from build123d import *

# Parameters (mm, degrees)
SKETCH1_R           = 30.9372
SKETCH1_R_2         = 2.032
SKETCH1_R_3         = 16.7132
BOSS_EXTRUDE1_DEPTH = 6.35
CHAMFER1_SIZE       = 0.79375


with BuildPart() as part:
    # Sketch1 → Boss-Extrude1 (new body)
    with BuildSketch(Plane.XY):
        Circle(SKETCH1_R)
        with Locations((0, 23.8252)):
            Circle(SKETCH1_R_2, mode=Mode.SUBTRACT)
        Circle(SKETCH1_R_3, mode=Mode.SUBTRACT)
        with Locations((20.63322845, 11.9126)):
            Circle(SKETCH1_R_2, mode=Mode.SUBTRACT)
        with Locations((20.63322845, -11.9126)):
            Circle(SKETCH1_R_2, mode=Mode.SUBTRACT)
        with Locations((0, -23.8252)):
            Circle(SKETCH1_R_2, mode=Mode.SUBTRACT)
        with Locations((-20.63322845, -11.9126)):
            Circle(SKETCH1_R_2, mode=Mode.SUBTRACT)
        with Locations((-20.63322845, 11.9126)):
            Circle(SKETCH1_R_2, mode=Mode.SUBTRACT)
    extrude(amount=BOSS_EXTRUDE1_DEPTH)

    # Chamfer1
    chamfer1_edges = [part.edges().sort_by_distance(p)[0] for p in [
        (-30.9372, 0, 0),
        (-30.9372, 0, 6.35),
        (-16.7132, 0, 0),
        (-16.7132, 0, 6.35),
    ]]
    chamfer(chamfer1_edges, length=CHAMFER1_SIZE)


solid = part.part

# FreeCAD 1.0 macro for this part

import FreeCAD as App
import Part
import Sketcher
from FreeCAD import Vector
Q = App.Units.Quantity


def edges_at(feature, points):
    """Names of the edges that pass closest to the given points."""
    edges = feature.Shape.Edges
    near = lambda p: min(range(len(edges)), key=lambda i: edges[i].distToShape(Part.Vertex(*p))[0])
    return sorted({f"Edge{near(p) + 1}" for p in points})

doc = App.newDocument("Part")
body = doc.addObject("PartDesign::Body", "Body")

sketch1 = body.newObject("Sketcher::SketchObject", "Sketch")
sketch1.AttachmentSupport = (doc.getObject("XY_Plane"), [""])
sketch1.MapMode = "FlatFace"
sketch1.addGeometry([
    Part.Circle(Vector(0, 0, 0), Vector(0, 0, 1), 30.9372),
    Part.Circle(Vector(-20.633228, -11.9126, 0), Vector(0, 0, 1), 2.032),
    Part.Circle(Vector(0, -23.8252, 0), Vector(0, 0, 1), 2.032),
    Part.Circle(Vector(20.633228, -11.9126, 0), Vector(0, 0, 1), 2.032),
    Part.Circle(Vector(-20.633228, 11.9126, 0), Vector(0, 0, 1), 2.032),
    Part.Circle(Vector(0, 0, 0), Vector(0, 0, 1), 16.7132),
    Part.Circle(Vector(20.633228, 11.9126, 0), Vector(0, 0, 1), 2.032),
    Part.Circle(Vector(0, 23.8252, 0), Vector(0, 0, 1), 2.032),
], False)
sketch1.addConstraint([
    Sketcher.Constraint("Coincident", 0, 3, -1, 1),
    Sketcher.Constraint("Coincident", 5, 3, -1, 1),
    Sketcher.Constraint("Equal", 1, 2),
    Sketcher.Constraint("Equal", 2, 3),
    Sketcher.Constraint("Equal", 3, 4),
    Sketcher.Constraint("Equal", 4, 6),
    Sketcher.Constraint("Equal", 6, 7),
    Sketcher.Constraint("Symmetric", 3, 3, 4, 3, -1, 1),
    Sketcher.Constraint("Symmetric", 1, 3, 6, 3, -1, 1),
    Sketcher.Constraint("Symmetric", 2, 3, 7, 3, -1, 1),
    Sketcher.Constraint("Symmetric", 1, 3, 3, 3, -2),
    Sketcher.Constraint("PointOnObject", 2, 3, -2),
    Sketcher.Constraint("Diameter", 1, Q("0.16 in")),
    Sketcher.Constraint("Diameter", 0, Q("2.436 in")),
    Sketcher.Constraint("Diameter", 5, Q("1.316 in")),
    Sketcher.Constraint("DistanceY", 1, 3, -1, 1, Q("0.469 in")),
    Sketcher.Constraint("DistanceY", 2, 3, -1, 1, Q("0.938 in")),
    Sketcher.Constraint("DistanceX", 1, 3, -1, 1, 20.633228),
])
pad1 = body.newObject("PartDesign::Pad", "Pad")
pad1.Profile = sketch1
pad1.Length = Q("0.25 in")
doc.recompute()

chamfer = body.newObject("PartDesign::Chamfer", "Chamfer")
chamfer.Base = (pad1, edges_at(pad1, [
    (-30.937, 0, 0),
    (-30.937, 0, 6.35),
    (-16.713, 0, 0),
    (-16.713, 0, 6.35),
]))
chamfer.Size = Q("0.03125 in")

doc.recompute()
